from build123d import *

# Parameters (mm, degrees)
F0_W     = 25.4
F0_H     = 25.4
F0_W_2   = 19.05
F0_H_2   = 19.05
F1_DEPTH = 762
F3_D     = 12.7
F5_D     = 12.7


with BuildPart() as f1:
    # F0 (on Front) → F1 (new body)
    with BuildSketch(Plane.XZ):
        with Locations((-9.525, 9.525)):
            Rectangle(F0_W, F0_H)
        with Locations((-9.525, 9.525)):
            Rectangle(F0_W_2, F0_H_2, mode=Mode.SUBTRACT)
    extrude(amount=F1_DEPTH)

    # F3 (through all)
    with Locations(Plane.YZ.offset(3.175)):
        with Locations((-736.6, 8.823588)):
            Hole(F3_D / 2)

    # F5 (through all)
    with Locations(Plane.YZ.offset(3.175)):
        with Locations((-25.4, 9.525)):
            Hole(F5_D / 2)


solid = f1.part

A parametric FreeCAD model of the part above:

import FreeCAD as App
import Part
import Sketcher

V = App.Vector
Q = App.Units.Quantity

doc = App.newDocument("Part")
body = doc.addObject("PartDesign::Body", "Body")

# Sketch on XZ plane
sketch1 = doc.addObject("Sketcher::SketchObject", "Sketch")
body.addObject(sketch1)
sketch1.AttachmentSupport = (doc.XZ_Plane, [""])
sketch1.MapMode = "FlatFace"
sketch1.addGeometry([
    Part.LineSegment(V(-22, 22, 0), V(-22, -3, 0)),  # 0
    Part.LineSegment(V(-22, -3, 0), V(3, -3, 0)),  # 1
    Part.LineSegment(V(3, -3, 0), V(3, 22, 0)),  # 2
    Part.LineSegment(V(3, 22, 0), V(-22, 22, 0)),  # 3
    Part.LineSegment(V(0, 0, 0), V(-19, 0, 0)),  # 4
    Part.LineSegment(V(-19, 0, 0), V(-19, 19, 0)),  # 5
    Part.LineSegment(V(-19, 19, 0), V(0, 19, 0)),  # 6
    Part.LineSegment(V(0, 19, 0), V(0, 0, 0)),  # 7
], False)
sketch1.addConstraint([
    Sketcher.Constraint("Coincident", 0, 2, 1, 1),
    Sketcher.Constraint("Coincident", 1, 2, 2, 1),
    Sketcher.Constraint("Coincident", 2, 2, 3, 1),
    Sketcher.Constraint("Coincident", 3, 2, 0, 1),
    Sketcher.Constraint("Coincident", 4, 2, 5, 1),
    Sketcher.Constraint("Coincident", 5, 2, 6, 1),
    Sketcher.Constraint("Coincident", 6, 2, 7, 1),
    Sketcher.Constraint("Coincident", 7, 2, 4, 1),
    Sketcher.Constraint("Vertical", 0),
    Sketcher.Constraint("Horizontal", 1),
    Sketcher.Constraint("Vertical", 2),
    Sketcher.Constraint("Horizontal", 3),
    Sketcher.Constraint("Horizontal", 4),
    Sketcher.Constraint("Vertical", 5),
    Sketcher.Constraint("Horizontal", 6),
    Sketcher.Constraint("Vertical", 7),
    Sketcher.Constraint("Coincident", 7, 2, -1, 1),
    Sketcher.Constraint("Equal", 3, 0),
    Sketcher.Constraint("Equal", 6, 5),
    Sketcher.Constraint("DistanceX", 1, 1, 1, 2, Q("1 in")),
    Sketcher.Constraint("DistanceX", 4, 2, 4, 1, Q("0.75 in")),
    Sketcher.Constraint("DistanceX", 0, 2, -1, 1, Q("0.875 in")),
    Sketcher.Constraint("DistanceY", 0, 2, -1, 1, Q("0.125 in")),
])
pad1 = doc.addObject("PartDesign::Pad", "Pad")
body.addObject(pad1)
pad1.Profile = sketch1
pad1.Length = Q("30 in")

# Sketch on YZ plane
sketch2 = doc.addObject("Sketcher::SketchObject", "Sketch001")
body.addObject(sketch2)
sketch2.AttachmentSupport = (doc.YZ_Plane, [""])
sketch2.MapMode = "FlatFace"
sketch2.AttachmentOffset = App.Placement(V(0, 0, 0.125 * 25.4), App.Rotation())
sketch2.addGeometry(Part.Circle(V(-737, 9, 0), V(0, 0, 1), 6), False)
sketch2.addConstraint([
    Sketcher.Constraint("Diameter", 0, Q("0.5 in")),
    Sketcher.Constraint("DistanceX", 0, 3, -1, 1, Q("29 in")),
    Sketcher.Constraint("DistanceY", -1, 1, 0, 3, Q("8.823588 mm")),
])
doc.recompute()
hole = doc.addObject("PartDesign::Hole", "Hole")
body.addObject(hole)
hole.Profile = sketch2
hole.ThreadType = "None"
hole.Diameter = Q("0.5 in")
hole.DepthType = "ThroughAll"

# Sketch on YZ plane
sketch3 = doc.addObject("Sketcher::SketchObject", "Sketch002")
body.addObject(sketch3)
sketch3.AttachmentSupport = (doc.YZ_Plane, [""])
sketch3.MapMode = "FlatFace"
sketch3.AttachmentOffset = App.Placement(V(0, 0, 0.125 * 25.4), App.Rotation())
sketch3.addGeometry(Part.Circle(V(-25, 10, 0), V(0, 0, 1), 6), False)
sketch3.addConstraint([
    Sketcher.Constraint("Diameter", 0, Q("0.5 in")),
    Sketcher.Constraint("DistanceX", 0, 3, -1, 1, Q("1 in")),
    Sketcher.Constraint("DistanceY", -1, 1, 0, 3, Q("0.375 in")),
])
doc.recompute()
hole2 = doc.addObject("PartDesign::Hole", "Hole001")
body.addObject(hole2)
hole2.Profile = sketch3
hole2.ThreadType = "None"
hole2.Diameter = Q("0.5 in")
hole2.DepthType = "ThroughAll"

doc.recompute()
